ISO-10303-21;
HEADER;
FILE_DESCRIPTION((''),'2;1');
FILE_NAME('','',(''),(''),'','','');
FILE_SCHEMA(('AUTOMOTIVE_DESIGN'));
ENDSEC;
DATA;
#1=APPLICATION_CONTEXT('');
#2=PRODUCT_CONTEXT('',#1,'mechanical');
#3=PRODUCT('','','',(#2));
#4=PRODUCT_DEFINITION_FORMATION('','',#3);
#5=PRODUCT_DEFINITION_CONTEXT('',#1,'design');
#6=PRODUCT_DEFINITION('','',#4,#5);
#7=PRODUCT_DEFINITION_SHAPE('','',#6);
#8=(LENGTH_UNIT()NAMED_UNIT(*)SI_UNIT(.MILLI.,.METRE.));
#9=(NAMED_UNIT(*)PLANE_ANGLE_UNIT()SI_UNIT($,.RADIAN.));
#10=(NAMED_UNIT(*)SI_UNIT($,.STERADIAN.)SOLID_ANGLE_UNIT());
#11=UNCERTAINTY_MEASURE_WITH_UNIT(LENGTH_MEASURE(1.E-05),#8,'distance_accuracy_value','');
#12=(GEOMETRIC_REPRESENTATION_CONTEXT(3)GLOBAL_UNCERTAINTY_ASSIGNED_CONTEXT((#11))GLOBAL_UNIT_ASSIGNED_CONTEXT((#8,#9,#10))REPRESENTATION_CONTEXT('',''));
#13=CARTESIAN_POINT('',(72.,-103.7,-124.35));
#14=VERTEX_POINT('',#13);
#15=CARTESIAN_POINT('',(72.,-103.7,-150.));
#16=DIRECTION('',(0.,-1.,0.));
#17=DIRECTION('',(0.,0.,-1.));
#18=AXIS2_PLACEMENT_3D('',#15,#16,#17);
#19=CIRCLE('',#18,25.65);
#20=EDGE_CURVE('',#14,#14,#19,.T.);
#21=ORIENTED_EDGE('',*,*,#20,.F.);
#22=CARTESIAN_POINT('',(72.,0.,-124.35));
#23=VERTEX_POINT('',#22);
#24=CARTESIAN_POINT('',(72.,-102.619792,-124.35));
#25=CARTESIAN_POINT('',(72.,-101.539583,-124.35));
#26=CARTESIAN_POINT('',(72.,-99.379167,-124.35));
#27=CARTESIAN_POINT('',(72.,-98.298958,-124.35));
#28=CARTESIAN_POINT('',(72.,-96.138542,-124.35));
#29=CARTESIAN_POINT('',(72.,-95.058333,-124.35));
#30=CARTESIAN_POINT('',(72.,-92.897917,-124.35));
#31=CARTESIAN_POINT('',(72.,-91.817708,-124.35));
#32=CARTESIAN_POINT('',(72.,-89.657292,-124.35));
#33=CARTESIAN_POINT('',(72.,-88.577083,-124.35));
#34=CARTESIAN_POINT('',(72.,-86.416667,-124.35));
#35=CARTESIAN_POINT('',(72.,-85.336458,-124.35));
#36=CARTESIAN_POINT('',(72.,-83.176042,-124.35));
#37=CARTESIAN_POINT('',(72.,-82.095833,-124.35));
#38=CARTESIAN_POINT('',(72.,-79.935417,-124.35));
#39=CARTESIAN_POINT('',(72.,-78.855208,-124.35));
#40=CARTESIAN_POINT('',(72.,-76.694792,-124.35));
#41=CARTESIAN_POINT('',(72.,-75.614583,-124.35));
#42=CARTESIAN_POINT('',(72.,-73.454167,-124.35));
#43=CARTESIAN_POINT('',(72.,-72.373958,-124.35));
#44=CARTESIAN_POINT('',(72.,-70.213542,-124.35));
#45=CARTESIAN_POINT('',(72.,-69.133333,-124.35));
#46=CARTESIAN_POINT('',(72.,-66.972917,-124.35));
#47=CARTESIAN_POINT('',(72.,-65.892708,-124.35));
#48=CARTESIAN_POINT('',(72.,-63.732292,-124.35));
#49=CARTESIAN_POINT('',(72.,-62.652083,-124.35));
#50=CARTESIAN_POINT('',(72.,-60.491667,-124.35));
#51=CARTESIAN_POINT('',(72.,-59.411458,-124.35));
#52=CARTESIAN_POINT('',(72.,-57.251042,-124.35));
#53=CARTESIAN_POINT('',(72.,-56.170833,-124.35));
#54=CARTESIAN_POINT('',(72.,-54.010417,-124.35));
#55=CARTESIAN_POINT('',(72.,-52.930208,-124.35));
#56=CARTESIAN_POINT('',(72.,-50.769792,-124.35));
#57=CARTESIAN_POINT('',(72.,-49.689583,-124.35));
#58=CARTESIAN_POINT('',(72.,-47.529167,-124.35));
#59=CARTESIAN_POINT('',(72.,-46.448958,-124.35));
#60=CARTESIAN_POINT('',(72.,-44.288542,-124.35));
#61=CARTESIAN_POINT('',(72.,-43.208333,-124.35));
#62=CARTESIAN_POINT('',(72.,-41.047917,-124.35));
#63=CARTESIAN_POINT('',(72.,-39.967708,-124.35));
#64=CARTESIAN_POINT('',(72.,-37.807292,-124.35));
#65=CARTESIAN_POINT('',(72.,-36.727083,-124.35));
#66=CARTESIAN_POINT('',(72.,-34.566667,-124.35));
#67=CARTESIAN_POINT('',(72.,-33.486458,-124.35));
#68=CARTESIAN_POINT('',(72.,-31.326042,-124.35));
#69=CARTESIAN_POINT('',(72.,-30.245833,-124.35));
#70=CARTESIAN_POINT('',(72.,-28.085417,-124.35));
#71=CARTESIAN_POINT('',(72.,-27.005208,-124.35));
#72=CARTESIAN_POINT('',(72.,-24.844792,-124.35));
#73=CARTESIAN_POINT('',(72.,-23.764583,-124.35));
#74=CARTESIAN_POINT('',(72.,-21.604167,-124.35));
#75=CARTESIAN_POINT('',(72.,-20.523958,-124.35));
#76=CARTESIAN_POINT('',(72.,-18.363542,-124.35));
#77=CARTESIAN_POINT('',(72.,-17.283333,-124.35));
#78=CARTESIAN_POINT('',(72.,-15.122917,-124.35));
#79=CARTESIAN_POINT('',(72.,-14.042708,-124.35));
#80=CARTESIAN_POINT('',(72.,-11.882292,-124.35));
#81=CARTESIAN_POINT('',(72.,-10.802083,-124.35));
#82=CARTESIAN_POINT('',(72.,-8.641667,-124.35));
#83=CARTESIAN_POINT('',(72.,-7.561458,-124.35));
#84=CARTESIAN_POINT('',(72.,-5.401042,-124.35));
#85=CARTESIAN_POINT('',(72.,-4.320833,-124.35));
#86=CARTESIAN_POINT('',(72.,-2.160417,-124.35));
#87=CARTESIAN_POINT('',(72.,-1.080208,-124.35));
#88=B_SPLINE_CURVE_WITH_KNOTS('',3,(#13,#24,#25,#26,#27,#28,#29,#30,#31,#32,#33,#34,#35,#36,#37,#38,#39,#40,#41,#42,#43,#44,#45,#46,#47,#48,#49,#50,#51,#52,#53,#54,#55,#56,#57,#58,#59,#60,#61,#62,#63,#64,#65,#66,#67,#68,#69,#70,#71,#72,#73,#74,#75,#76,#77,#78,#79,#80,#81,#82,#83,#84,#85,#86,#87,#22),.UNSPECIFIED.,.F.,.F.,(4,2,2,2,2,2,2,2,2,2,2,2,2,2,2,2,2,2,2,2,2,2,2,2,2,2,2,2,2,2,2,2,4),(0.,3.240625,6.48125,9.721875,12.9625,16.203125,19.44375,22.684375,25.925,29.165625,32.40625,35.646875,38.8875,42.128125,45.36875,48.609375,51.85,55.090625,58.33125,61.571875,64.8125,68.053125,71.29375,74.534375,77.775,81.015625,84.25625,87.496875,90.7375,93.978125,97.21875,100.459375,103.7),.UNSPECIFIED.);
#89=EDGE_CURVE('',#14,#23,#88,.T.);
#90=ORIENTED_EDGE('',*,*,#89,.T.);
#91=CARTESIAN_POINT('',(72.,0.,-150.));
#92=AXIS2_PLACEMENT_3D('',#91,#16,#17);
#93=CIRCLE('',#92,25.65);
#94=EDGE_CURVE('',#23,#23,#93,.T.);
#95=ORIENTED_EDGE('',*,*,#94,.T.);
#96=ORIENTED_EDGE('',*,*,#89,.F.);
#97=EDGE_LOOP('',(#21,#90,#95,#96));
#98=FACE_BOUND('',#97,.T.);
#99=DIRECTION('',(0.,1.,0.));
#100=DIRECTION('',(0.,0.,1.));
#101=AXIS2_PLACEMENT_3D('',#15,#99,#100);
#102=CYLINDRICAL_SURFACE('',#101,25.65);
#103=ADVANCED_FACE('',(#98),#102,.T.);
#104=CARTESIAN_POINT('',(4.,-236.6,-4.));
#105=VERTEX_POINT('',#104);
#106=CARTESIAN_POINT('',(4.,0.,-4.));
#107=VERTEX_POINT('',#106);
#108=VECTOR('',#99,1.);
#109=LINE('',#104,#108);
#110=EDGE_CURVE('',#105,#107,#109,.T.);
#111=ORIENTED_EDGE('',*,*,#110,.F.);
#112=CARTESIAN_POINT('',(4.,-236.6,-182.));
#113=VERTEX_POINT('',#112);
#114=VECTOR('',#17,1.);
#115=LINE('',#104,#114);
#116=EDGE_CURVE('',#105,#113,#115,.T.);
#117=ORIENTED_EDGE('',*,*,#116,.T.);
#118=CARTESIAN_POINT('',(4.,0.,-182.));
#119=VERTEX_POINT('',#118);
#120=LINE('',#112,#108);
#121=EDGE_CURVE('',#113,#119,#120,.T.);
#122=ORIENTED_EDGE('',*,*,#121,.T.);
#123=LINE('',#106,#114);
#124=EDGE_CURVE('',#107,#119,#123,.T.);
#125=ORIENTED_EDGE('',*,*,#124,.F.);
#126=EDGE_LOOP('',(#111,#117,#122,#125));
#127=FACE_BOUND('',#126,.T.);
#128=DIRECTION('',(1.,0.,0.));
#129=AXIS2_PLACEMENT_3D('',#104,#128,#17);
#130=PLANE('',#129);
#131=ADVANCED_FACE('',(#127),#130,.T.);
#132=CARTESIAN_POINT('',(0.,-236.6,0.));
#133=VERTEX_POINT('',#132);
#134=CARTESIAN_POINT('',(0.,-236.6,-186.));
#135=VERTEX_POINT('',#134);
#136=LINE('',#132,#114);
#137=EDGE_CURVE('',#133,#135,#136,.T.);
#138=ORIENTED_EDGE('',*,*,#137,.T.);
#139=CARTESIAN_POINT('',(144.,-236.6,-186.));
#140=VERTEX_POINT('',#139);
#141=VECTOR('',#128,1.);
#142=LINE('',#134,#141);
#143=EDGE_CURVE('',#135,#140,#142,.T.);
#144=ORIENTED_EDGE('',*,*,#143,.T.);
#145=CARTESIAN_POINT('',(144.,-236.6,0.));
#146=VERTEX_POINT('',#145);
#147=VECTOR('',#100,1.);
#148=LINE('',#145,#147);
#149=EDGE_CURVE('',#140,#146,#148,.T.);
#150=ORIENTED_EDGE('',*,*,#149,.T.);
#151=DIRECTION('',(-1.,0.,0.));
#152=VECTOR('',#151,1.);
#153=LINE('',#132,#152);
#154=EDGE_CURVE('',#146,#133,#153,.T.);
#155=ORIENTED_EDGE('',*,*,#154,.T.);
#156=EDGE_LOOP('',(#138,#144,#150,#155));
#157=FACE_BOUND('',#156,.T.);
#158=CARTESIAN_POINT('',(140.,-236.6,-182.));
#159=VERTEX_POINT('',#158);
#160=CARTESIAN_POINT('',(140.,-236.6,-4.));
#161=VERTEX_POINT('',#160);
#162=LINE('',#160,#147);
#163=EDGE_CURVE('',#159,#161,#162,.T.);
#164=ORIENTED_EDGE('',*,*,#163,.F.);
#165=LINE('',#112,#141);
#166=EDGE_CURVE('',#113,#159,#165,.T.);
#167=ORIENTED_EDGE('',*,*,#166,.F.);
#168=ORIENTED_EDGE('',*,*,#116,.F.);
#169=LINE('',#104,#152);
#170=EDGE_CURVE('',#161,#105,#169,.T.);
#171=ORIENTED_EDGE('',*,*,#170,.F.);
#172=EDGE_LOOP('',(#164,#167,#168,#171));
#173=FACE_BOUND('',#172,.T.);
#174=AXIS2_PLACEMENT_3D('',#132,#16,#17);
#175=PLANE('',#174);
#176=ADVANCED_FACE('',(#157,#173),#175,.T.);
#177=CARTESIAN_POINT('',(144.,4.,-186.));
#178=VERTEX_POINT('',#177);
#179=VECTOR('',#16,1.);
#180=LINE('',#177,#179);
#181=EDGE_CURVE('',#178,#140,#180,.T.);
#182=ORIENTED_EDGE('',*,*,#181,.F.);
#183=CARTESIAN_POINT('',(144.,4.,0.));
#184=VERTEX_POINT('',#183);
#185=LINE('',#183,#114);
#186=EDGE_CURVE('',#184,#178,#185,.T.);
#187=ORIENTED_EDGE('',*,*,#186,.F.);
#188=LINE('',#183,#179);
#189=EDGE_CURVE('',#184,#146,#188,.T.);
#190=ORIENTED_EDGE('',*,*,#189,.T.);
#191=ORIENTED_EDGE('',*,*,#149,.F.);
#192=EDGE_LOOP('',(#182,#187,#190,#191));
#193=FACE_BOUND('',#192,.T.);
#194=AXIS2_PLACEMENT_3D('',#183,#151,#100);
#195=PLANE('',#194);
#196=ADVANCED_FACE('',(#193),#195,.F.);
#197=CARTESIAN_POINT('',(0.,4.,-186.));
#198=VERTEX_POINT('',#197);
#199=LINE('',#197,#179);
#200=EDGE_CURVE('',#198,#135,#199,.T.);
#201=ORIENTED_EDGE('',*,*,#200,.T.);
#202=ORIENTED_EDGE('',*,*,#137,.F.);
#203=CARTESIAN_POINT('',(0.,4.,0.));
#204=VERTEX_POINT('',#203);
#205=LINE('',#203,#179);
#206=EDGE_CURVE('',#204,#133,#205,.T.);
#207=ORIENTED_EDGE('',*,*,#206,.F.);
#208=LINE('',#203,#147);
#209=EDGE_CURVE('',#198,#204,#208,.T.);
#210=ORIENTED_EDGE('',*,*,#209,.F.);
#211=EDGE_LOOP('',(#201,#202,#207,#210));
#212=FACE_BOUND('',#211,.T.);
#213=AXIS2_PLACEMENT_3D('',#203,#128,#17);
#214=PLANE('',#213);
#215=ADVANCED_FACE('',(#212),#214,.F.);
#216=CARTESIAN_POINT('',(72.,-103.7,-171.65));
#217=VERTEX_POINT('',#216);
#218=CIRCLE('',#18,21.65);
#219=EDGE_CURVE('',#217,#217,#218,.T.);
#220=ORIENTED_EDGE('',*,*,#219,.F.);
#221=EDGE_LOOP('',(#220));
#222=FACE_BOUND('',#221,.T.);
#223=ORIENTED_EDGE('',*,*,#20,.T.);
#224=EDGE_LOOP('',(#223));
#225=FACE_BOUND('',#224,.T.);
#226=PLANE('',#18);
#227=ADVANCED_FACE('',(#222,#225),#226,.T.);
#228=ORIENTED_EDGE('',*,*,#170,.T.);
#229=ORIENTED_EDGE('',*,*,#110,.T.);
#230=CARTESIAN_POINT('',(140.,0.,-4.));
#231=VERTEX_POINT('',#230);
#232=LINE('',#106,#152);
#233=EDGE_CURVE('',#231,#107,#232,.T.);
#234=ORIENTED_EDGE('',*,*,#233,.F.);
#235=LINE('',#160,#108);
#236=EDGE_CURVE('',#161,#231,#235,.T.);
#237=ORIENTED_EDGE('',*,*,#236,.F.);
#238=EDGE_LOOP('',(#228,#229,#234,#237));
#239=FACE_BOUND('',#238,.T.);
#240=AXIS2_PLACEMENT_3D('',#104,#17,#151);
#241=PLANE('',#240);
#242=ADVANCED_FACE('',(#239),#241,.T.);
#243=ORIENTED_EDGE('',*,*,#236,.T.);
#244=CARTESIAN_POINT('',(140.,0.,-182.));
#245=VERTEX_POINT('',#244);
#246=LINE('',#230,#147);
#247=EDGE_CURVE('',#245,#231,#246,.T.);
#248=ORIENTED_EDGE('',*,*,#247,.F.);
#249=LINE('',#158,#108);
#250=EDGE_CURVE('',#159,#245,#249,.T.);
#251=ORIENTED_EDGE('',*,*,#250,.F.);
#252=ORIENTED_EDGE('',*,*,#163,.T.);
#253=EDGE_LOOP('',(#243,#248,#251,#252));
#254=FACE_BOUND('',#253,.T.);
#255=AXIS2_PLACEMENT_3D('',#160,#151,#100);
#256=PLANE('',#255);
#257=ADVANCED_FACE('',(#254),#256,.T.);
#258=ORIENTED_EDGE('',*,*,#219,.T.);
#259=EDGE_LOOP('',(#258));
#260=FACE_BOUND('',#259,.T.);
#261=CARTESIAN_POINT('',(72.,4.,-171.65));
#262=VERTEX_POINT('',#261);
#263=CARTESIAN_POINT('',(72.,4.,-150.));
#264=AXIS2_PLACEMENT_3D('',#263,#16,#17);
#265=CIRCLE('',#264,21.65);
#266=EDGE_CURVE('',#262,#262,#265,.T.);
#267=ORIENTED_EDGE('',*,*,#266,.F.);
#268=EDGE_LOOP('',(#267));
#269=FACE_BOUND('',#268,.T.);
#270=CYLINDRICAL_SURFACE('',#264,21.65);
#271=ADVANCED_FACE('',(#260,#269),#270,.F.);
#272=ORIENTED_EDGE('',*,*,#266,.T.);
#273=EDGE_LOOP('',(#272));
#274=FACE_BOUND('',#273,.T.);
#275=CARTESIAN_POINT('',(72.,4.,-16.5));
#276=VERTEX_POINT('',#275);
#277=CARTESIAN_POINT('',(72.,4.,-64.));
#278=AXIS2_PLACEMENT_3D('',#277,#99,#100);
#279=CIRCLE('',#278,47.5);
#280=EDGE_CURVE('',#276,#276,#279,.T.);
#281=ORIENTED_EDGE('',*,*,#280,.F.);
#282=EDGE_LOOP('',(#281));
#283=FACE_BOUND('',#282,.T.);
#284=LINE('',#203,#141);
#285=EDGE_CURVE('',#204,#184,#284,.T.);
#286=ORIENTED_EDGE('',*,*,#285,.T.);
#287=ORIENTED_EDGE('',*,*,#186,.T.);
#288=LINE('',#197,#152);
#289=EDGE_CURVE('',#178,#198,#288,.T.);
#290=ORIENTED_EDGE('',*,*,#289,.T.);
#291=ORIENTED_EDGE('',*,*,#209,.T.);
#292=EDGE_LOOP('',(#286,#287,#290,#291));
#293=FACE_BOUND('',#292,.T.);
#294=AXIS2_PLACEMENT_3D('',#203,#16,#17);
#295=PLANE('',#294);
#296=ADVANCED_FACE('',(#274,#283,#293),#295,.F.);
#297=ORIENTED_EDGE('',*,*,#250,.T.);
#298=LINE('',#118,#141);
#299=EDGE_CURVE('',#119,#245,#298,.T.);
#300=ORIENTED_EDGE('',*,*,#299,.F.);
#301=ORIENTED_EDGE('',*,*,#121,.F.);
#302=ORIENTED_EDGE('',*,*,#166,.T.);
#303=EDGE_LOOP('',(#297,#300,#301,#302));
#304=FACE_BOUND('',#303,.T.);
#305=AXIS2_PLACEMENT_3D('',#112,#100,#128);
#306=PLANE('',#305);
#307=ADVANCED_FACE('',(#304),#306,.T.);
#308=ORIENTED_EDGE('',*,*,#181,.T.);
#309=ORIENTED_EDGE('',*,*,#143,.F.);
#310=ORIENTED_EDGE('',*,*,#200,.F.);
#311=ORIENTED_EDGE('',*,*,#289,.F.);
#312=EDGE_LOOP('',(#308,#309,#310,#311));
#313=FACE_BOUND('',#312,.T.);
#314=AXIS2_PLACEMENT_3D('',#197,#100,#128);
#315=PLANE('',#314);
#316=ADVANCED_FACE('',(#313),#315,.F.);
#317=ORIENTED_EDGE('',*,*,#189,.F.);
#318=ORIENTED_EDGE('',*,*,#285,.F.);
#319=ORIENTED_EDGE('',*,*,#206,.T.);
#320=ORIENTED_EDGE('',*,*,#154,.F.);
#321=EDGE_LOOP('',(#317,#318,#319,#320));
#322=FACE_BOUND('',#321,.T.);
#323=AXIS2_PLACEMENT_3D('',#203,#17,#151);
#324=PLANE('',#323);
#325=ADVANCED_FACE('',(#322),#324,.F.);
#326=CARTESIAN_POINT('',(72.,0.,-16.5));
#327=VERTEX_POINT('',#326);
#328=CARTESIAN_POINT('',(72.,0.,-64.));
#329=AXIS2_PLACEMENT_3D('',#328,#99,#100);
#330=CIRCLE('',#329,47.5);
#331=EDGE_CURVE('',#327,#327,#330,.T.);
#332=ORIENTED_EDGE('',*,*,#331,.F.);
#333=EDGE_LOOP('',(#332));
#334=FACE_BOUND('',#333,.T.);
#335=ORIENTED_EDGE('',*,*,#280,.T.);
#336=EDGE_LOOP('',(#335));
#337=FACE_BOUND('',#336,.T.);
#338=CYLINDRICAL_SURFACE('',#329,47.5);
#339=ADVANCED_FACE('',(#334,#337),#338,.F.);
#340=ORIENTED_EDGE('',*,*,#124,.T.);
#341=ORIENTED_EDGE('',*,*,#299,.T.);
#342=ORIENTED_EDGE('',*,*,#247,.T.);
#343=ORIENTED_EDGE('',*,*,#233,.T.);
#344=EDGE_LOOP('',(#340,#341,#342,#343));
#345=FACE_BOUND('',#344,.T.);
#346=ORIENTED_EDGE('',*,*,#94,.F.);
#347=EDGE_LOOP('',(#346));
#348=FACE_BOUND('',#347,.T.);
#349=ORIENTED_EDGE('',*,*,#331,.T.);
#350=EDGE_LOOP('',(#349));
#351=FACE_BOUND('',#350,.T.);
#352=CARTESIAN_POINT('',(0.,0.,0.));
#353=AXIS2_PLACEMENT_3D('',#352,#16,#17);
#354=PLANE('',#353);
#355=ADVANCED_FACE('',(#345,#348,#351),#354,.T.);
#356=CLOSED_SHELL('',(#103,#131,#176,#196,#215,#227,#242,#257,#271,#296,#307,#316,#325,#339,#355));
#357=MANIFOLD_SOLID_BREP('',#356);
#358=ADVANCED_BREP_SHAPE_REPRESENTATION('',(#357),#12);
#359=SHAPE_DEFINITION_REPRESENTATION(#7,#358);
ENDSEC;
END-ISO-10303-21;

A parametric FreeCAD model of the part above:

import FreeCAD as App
import Part
import Sketcher
from FreeCAD import Vector

doc = App.newDocument("Part")
params = doc.addObject("Spreadsheet::Sheet", "Params")
for row, (alias, value) in enumerate([
    ("sketch1_width", "144 mm"),
    ("sketch1_height", "186 mm"),
    ("pad1_length", "4 mm"),
    ("sketch2_width", "144 mm"),
    ("sketch2_width2", "136 mm"),
    ("sketch2_height", "186 mm"),
    ("sketch2_height2", "178 mm"),
    ("pad2_length", "236.6 mm"),
    ("sketch3_diameter", "95 mm"),
    ("pocket1_length", "4 mm"),
    ("sketch4_diameter", "43.3 mm"),
    ("pocket2_length", "4 mm"),
    ("sketch5_diameter", "51.3 mm"),
    ("sketch5_diameter2", "43.3 mm"),
    ("pad3_length", "103.7 mm"),
], start=1):
    params.set(f"A{row}", alias)
    params.set(f"B{row}", "=" + value)
    params.setAlias(f"B{row}", alias)

body = doc.addObject("PartDesign::Body", "Body")

sketch1 = body.newObject("Sketcher::SketchObject", "Sketch")
sketch1.AttachmentSupport = (doc.getObject("XZ_Plane"), [""])
sketch1.MapMode = "FlatFace"
sketch1.addGeometry([
    Part.LineSegment(Vector(0, -186, 0), Vector(0, 0, 0)),
    Part.LineSegment(Vector(0, 0, 0), Vector(144, 0, 0)),
    Part.LineSegment(Vector(144, 0, 0), Vector(144, -186, 0)),
    Part.LineSegment(Vector(144, -186, 0), Vector(0, -186, 0)),
], False)
sketch1.addConstraint([
    Sketcher.Constraint("Coincident", 0, 2, 1, 1),
    Sketcher.Constraint("Coincident", 1, 2, 2, 1),
    Sketcher.Constraint("Coincident", 2, 2, 3, 1),
    Sketcher.Constraint("Coincident", 3, 2, 0, 1),
    Sketcher.Constraint("Vertical", 0),
    Sketcher.Constraint("Horizontal", 1),
    Sketcher.Constraint("Vertical", 2),
    Sketcher.Constraint("Horizontal", 3),
    Sketcher.Constraint("Coincident", 0, 2, -1, 1),
    Sketcher.Constraint("DistanceX", 1, 1, 1, 2, 144.0),
    Sketcher.Constraint("DistanceY", 0, 1, 0, 2, 186.0),
])
sketch1.setExpression("Constraints[9]", "Params.sketch1_width")
sketch1.setExpression("Constraints[10]", "Params.sketch1_height")
pad1 = body.newObject("PartDesign::Pad", "Pad")
pad1.Profile = sketch1
pad1.setExpression("Length", "Params.pad1_length")
pad1.Reversed = True

sketch2 = body.newObject("Sketcher::SketchObject", "Sketch001")
sketch2.AttachmentSupport = (doc.getObject("XZ_Plane"), [""])
sketch2.MapMode = "FlatFace"
sketch2.addGeometry([
    Part.LineSegment(Vector(144, -186, 0), Vector(144, 0, 0)),
    Part.LineSegment(Vector(144, 0, 0), Vector(0, 0, 0)),
    Part.LineSegment(Vector(0, 0, 0), Vector(0, -186, 0)),
    Part.LineSegment(Vector(0, -186, 0), Vector(144, -186, 0)),
    Part.LineSegment(Vector(4, -4, 0), Vector(140, -4, 0)),
    Part.LineSegment(Vector(140, -4, 0), Vector(140, -182, 0)),
    Part.LineSegment(Vector(140, -182, 0), Vector(4, -182, 0)),
    Part.LineSegment(Vector(4, -182, 0), Vector(4, -4, 0)),
], False)
sketch2.addConstraint([
    Sketcher.Constraint("Coincident", 0, 2, 1, 1),
    Sketcher.Constraint("Coincident", 1, 2, 2, 1),
    Sketcher.Constraint("Coincident", 2, 2, 3, 1),
    Sketcher.Constraint("Coincident", 3, 2, 0, 1),
    Sketcher.Constraint("Coincident", 4, 2, 5, 1),
    Sketcher.Constraint("Coincident", 5, 2, 6, 1),
    Sketcher.Constraint("Coincident", 6, 2, 7, 1),
    Sketcher.Constraint("Coincident", 7, 2, 4, 1),
    Sketcher.Constraint("Vertical", 0),
    Sketcher.Constraint("Horizontal", 1),
    Sketcher.Constraint("Vertical", 2),
    Sketcher.Constraint("Horizontal", 3),
    Sketcher.Constraint("Horizontal", 4),
    Sketcher.Constraint("Vertical", 5),
    Sketcher.Constraint("Horizontal", 6),
    Sketcher.Constraint("Vertical", 7),
    Sketcher.Constraint("Coincident", 1, 2, -1, 1),
    Sketcher.Constraint("DistanceX", 1, 2, 1, 1, 144.0),
    Sketcher.Constraint("DistanceX", 4, 1, 4, 2, 136.0),
    Sketcher.Constraint("DistanceY", 0, 1, 0, 2, 186.0),
    Sketcher.Constraint("DistanceY", 5, 2, 5, 1, 178.0),
    Sketcher.Constraint("DistanceX", -1, 1, 4, 2, 140.0),
    Sketcher.Constraint("DistanceY", 4, 2, -1, 1, 4.0),
])
sketch2.setExpression("Constraints[17]", "Params.sketch2_width")
sketch2.setExpression("Constraints[18]", "Params.sketch2_width2")
sketch2.setExpression("Constraints[19]", "Params.sketch2_height")
sketch2.setExpression("Constraints[20]", "Params.sketch2_height2")
pad2 = body.newObject("PartDesign::Pad", "Pad001")
pad2.Profile = sketch2
pad2.setExpression("Length", "Params.pad2_length")

sketch3 = body.newObject("Sketcher::SketchObject", "Sketch002")
sketch3.AttachmentSupport = (doc.getObject("XZ_Plane"), [""])
sketch3.MapMode = "FlatFace"
sketch3.AttachmentOffset = App.Placement(Vector(0, 0, -4), App.Rotation())
sketch3.addGeometry(Part.Circle(Vector(72, -64, 0), Vector(0, 0, 1), 48), False)
sketch3.addConstraint([
    Sketcher.Constraint("Diameter", 0, 95.0),
    Sketcher.Constraint("DistanceX", -1, 1, 0, 3, 72.0),
    Sketcher.Constraint("DistanceY", 0, 3, -1, 1, 64.0),
])
sketch3.setExpression("Constraints[0]", "Params.sketch3_diameter")
pocket1 = body.newObject("PartDesign::Pocket", "Pocket")
pocket1.Profile = sketch3
pocket1.setExpression("Length", "Params.pocket1_length")
pocket1.Reversed = True

sketch4 = body.newObject("Sketcher::SketchObject", "Sketch003")
sketch4.AttachmentSupport = (doc.getObject("XZ_Plane"), [""])
sketch4.MapMode = "FlatFace"
sketch4.addGeometry(Part.Circle(Vector(72, -150, 0), Vector(0, 0, 1), 22), False)
sketch4.addConstraint([
    Sketcher.Constraint("Diameter", 0, 43.3),
    Sketcher.Constraint("DistanceX", -1, 1, 0, 3, 72.0),
    Sketcher.Constraint("DistanceY", 0, 3, -1, 1, 150.0),
])
sketch4.setExpression("Constraints[0]", "Params.sketch4_diameter")
pocket2 = body.newObject("PartDesign::Pocket", "Pocket001")
pocket2.Profile = sketch4
pocket2.setExpression("Length", "Params.pocket2_length")

sketch5 = body.newObject("Sketcher::SketchObject", "Sketch004")
sketch5.AttachmentSupport = (doc.getObject("XZ_Plane"), [""])
sketch5.MapMode = "FlatFace"
sketch5.AttachmentOffset = App.Placement(Vector(0, 0, 103.7), App.Rotation())
sketch5.addGeometry([
    Part.Circle(Vector(72, -150, 0), Vector(0, 0, 1), 26),
    Part.Circle(Vector(72, -150, 0), Vector(0, 0, 1), 22),
], False)
sketch5.addConstraint([
    Sketcher.Constraint("Coincident", 1, 3, 0, 3),
    Sketcher.Constraint("Diameter", 0, 51.3),
    Sketcher.Constraint("Diameter", 1, 43.3),
    Sketcher.Constraint("DistanceX", -1, 1, 0, 3, 72.0),
    Sketcher.Constraint("DistanceY", 0, 3, -1, 1, 150.0),
])
sketch5.setExpression("Constraints[1]", "Params.sketch5_diameter")
sketch5.setExpression("Constraints[2]", "Params.sketch5_diameter2")
pad3 = body.newObject("PartDesign::Pad", "Pad002")
pad3.Profile = sketch5
pad3.setExpression("Length", "Params.pad3_length")
pad3.Reversed = True

doc.recompute()
